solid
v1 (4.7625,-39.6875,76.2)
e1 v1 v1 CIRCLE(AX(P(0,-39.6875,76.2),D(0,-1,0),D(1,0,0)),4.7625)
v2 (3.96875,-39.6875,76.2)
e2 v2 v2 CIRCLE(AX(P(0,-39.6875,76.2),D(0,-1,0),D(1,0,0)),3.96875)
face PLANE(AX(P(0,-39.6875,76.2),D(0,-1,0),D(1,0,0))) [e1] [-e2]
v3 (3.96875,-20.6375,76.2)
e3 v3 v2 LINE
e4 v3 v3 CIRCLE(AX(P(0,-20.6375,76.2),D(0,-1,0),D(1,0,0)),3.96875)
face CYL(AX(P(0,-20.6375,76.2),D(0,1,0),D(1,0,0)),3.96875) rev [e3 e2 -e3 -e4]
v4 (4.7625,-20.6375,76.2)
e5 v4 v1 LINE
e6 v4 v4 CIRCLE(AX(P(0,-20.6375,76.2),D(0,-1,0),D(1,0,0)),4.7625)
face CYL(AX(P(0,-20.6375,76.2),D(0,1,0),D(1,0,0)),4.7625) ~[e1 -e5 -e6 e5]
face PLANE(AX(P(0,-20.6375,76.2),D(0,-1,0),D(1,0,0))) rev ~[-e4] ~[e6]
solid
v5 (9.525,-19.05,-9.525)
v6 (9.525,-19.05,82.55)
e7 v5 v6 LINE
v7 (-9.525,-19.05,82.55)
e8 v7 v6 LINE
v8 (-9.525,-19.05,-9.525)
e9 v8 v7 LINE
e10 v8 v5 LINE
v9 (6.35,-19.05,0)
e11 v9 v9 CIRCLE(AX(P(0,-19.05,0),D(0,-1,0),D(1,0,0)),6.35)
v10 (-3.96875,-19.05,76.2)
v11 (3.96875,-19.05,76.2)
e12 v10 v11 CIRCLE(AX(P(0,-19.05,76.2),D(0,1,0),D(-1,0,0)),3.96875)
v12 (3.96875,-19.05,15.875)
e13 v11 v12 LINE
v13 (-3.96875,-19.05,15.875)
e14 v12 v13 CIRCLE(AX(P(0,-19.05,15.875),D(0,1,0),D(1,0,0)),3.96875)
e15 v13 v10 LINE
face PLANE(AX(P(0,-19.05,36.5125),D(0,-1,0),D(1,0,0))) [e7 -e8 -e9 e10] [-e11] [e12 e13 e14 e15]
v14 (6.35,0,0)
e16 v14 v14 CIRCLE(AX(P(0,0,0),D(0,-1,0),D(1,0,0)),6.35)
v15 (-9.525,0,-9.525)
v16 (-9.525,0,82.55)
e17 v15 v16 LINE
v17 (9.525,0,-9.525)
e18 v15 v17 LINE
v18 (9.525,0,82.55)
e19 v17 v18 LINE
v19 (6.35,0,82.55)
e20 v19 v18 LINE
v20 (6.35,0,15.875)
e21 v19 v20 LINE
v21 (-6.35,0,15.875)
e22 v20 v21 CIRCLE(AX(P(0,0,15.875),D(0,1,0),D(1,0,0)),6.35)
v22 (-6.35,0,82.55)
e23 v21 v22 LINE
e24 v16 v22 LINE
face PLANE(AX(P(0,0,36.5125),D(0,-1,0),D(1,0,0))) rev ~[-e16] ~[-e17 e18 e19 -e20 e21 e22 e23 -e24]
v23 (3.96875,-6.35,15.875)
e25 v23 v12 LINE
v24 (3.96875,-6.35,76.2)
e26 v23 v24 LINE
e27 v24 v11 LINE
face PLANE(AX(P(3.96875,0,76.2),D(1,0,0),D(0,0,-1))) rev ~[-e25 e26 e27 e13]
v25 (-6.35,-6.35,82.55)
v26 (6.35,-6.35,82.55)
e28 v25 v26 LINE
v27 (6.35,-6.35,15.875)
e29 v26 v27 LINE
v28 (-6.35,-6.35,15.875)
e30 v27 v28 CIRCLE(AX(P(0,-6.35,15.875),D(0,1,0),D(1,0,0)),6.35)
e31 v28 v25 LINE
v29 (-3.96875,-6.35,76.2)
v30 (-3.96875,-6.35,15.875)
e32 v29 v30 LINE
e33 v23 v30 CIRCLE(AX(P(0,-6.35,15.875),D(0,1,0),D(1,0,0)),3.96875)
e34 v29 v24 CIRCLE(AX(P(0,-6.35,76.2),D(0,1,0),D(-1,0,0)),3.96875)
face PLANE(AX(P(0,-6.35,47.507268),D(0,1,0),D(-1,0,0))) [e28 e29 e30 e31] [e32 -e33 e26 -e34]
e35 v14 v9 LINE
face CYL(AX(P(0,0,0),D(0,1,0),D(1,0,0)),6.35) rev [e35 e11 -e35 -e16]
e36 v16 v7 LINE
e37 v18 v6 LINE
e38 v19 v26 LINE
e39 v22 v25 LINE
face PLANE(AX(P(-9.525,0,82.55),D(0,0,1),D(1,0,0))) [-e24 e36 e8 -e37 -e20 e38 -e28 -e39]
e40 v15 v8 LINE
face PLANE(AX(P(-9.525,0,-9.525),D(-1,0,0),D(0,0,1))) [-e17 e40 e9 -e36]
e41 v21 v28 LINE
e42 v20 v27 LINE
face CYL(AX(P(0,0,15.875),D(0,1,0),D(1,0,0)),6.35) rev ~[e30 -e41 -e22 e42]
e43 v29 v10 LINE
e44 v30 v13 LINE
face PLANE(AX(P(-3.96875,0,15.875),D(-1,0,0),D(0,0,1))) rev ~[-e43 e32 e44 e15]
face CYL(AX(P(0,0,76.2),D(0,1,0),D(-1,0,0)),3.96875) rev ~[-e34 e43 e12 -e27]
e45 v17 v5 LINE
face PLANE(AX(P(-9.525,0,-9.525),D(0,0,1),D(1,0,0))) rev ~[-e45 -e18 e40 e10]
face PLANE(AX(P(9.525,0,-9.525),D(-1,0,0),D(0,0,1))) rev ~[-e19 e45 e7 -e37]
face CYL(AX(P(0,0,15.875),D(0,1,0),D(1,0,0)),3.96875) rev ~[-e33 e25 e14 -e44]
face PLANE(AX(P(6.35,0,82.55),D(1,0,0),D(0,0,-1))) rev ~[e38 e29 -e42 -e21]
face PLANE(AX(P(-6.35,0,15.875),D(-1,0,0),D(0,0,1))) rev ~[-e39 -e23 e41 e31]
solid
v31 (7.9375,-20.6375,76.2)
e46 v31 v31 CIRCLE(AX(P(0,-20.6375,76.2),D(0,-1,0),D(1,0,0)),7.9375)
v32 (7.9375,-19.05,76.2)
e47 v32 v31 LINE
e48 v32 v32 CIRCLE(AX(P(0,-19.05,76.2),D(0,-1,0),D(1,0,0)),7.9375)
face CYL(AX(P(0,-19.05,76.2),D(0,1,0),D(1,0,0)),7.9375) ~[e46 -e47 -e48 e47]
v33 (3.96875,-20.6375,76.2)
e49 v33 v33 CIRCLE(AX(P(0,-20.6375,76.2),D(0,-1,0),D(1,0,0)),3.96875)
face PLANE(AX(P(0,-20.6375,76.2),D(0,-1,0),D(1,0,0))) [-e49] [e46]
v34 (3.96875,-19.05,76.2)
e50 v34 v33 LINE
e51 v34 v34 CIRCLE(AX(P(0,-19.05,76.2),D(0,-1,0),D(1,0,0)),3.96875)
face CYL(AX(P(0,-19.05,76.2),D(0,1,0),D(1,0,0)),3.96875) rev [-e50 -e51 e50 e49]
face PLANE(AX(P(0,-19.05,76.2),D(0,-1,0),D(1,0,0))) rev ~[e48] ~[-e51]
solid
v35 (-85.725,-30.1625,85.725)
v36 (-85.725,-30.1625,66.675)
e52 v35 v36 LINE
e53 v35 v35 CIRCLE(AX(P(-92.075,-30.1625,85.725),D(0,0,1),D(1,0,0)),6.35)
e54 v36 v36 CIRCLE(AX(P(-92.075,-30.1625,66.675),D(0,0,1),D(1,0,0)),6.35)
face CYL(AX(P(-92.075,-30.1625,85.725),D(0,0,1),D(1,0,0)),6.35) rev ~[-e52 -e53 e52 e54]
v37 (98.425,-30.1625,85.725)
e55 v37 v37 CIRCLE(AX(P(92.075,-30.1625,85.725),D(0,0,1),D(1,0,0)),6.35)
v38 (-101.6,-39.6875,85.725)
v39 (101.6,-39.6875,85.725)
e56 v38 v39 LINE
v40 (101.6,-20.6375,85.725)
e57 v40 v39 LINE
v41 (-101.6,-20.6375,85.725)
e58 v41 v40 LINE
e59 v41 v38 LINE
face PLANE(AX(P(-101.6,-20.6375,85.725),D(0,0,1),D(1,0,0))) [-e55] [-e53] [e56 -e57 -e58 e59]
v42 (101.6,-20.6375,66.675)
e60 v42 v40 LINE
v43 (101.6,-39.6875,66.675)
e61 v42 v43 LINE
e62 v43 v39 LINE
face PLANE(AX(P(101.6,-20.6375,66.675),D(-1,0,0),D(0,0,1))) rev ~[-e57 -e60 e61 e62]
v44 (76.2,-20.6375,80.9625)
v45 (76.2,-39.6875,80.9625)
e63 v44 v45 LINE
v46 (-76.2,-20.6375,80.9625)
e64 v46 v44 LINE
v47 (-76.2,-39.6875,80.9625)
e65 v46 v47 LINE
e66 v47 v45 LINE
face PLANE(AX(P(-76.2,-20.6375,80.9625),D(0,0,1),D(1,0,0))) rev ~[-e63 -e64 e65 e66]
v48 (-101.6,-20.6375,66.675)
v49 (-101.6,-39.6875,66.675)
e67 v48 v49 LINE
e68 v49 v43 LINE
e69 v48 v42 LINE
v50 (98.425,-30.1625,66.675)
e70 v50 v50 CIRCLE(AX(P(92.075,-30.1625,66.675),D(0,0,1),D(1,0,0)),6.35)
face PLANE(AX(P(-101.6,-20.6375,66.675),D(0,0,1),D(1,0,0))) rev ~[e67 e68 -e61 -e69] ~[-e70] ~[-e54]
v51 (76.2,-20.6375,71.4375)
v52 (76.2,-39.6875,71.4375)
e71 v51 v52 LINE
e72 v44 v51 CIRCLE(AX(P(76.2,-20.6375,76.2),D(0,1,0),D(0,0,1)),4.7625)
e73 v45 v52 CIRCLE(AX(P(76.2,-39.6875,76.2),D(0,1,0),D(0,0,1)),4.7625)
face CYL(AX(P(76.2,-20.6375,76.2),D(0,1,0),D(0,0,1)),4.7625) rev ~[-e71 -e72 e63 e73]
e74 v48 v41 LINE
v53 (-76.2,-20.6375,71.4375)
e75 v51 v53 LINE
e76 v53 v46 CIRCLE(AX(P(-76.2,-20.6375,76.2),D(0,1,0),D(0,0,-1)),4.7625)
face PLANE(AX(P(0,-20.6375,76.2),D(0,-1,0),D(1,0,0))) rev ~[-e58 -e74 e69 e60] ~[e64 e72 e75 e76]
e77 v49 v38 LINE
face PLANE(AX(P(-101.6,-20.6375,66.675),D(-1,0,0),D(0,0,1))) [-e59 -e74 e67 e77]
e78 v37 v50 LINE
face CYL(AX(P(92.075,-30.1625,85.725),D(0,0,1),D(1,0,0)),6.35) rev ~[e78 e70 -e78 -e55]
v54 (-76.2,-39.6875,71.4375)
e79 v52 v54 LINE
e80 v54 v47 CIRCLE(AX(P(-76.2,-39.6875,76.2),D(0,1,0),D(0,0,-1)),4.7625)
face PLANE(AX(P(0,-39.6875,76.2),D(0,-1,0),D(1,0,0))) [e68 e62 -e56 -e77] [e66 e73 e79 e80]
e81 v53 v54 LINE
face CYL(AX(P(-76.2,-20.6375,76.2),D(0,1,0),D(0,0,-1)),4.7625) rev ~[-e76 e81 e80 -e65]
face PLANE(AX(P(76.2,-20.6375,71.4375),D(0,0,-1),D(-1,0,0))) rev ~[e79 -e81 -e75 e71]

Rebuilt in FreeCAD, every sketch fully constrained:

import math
import FreeCAD as App
import Part
import Sketcher

V = App.Vector
Q = App.Units.Quantity

doc = App.newDocument("Part")
body = doc.addObject("PartDesign::Body", "Body")

# Sketch on XZ plane
sketch1 = body.newObject("Sketcher::SketchObject", "Sketch")
sketch1.AttachmentSupport = (doc.getObject("XZ_Plane"), [""])
sketch1.MapMode = "FlatFace"
sketch1.addGeometry(Part.LineSegment(V(-9.525, 82.55, 0), V(-9.525, -9.525, 0)), False)
sketch1.addGeometry(Part.LineSegment(V(-9.525, -9.525, 0), V(9.525, -9.525, 0)), False)
sketch1.addGeometry(Part.LineSegment(V(9.525, -9.525, 0), V(9.525, 82.55, 0)), False)
sketch1.addGeometry(Part.LineSegment(V(9.525, 82.55, 0), V(-9.525, 82.55, 0)), False)
sketch1.addGeometry(Part.Circle(V(0, 0, 0), V(0, 0, 1), 6.35), False)
sketch1.addGeometry(Part.LineSegment(V(-3.96875, 15.875, 0), V(-3.96875, 76.2, 0)), False)
sketch1.addGeometry(Part.ArcOfCircle(Part.Circle(V(0, 76.2, 0), V(0, 0, 1), 3.96875), math.radians(0), math.radians(180)), False)
sketch1.addGeometry(Part.LineSegment(V(3.96875, 76.2, 0), V(3.96875, 15.875, 0)), False)
sketch1.addGeometry(Part.ArcOfCircle(Part.Circle(V(0, 15.875, 0), V(0, 0, 1), 3.96875), math.radians(180), math.radians(360)), False)
sketch1.addConstraint(Sketcher.Constraint("Coincident", 0, 2, 1, 1))
sketch1.addConstraint(Sketcher.Constraint("Coincident", 1, 2, 2, 1))
sketch1.addConstraint(Sketcher.Constraint("Coincident", 2, 2, 3, 1))
sketch1.addConstraint(Sketcher.Constraint("Coincident", 3, 2, 0, 1))
sketch1.addConstraint(Sketcher.Constraint("Tangent", 5, 2, 6, 2))
sketch1.addConstraint(Sketcher.Constraint("Tangent", 6, 1, 7, 1))
sketch1.addConstraint(Sketcher.Constraint("Tangent", 7, 2, 8, 2))
sketch1.addConstraint(Sketcher.Constraint("Tangent", 8, 1, 5, 1))
sketch1.addConstraint(Sketcher.Constraint("Vertical", 0))
sketch1.addConstraint(Sketcher.Constraint("Horizontal", 1))
sketch1.addConstraint(Sketcher.Constraint("Vertical", 2))
sketch1.addConstraint(Sketcher.Constraint("Horizontal", 3))
sketch1.addConstraint(Sketcher.Constraint("Vertical", 5))
sketch1.addConstraint(Sketcher.Constraint("Vertical", 7))
sketch1.addConstraint(Sketcher.Constraint("Coincident", 4, 3, -1, 1))
sketch1.addConstraint(Sketcher.Constraint("PointOnObject", 6, 3, -2))
sketch1.addConstraint(Sketcher.Constraint("Diameter", 4, Q("0.5 in")))
sketch1.addConstraint(Sketcher.Constraint("DistanceY", -1, 1, 6, 3, Q("3 in")))
sketch1.addConstraint(Sketcher.Constraint("Radius", 6, Q("0.15625 in")))
sketch1.addConstraint(Sketcher.Constraint("DistanceY", 0, 2, 8, 3, Q("1 in")))
sketch1.addConstraint(Sketcher.Constraint("DistanceX", 1, 1, 1, 2, Q("0.75 in")))
sketch1.addConstraint(Sketcher.Constraint("DistanceY", 0, 2, 0, 1, Q("3.625 in")))
sketch1.addConstraint(Sketcher.Constraint("DistanceY", 5, 1, 5, 2, Q("2.375 in")))
sketch1.addConstraint(Sketcher.Constraint("DistanceX", 0, 2, -1, 1, Q("0.375 in")))
pad1 = body.newObject("PartDesign::Pad", "Pad")
pad1.Profile = sketch1
pad1.Length = Q("0.75 in")

# Sketch on XZ plane
sketch2 = body.newObject("Sketcher::SketchObject", "Sketch001")
sketch2.AttachmentSupport = (doc.getObject("XZ_Plane"), [""])
sketch2.MapMode = "FlatFace"
sketch2.addGeometry(Part.ArcOfCircle(Part.Circle(V(0, 15.875, 0), V(0, 0, 1), 6.35), math.radians(180), math.radians(360)), False)
sketch2.addGeometry(Part.LineSegment(V(-6.35, 15.875, 0), V(-6.35, 82.55, 0)), False)
sketch2.addGeometry(Part.LineSegment(V(-6.35, 82.55, 0), V(6.35, 82.55, 0)), False)
sketch2.addGeometry(Part.LineSegment(V(6.35, 82.55, 0), V(6.35, 15.875, 0)), False)
sketch2.addConstraint(Sketcher.Constraint("Tangent", 0, 1, 1, 1))
sketch2.addConstraint(Sketcher.Constraint("Coincident", 1, 2, 2, 1))
sketch2.addConstraint(Sketcher.Constraint("Coincident", 2, 2, 3, 1))
sketch2.addConstraint(Sketcher.Constraint("Tangent", 3, 2, 0, 2))
sketch2.addConstraint(Sketcher.Constraint("Vertical", 1))
sketch2.addConstraint(Sketcher.Constraint("Horizontal", 2))
sketch2.addConstraint(Sketcher.Constraint("Vertical", 3))
sketch2.addConstraint(Sketcher.Constraint("PointOnObject", 0, 3, -2))
sketch2.addConstraint(Sketcher.Constraint("Radius", 0, Q("0.25 in")))
sketch2.addConstraint(Sketcher.Constraint("DistanceY", 1, 1, 1, 2, Q("2.625 in")))
sketch2.addConstraint(Sketcher.Constraint("DistanceY", -1, 1, 1, 2, Q("3.25 in")))
pocket1 = body.newObject("PartDesign::Pocket", "Pocket")
pocket1.Profile = sketch2
pocket1.Length = Q("0.25 in")
pocket1.Reversed = True
body2 = doc.addObject("PartDesign::Body", "Body001")

# Sketch on XZ plane
sketch3 = body2.newObject("Sketcher::SketchObject", "Sketch002")
sketch3.AttachmentSupport = (doc.getObject("XZ_Plane001"), [""])
sketch3.MapMode = "FlatFace"
sketch3.AttachmentOffset = App.Placement(V(0, 0, 0.75 * 25.4), App.Rotation())
sketch3.addGeometry(Part.Circle(V(0, 76.2, 0), V(0, 0, 1), 7.9375), False)
sketch3.addGeometry(Part.Circle(V(0, 76.2, 0), V(0, 0, 1), 3.96875), False)
sketch3.addConstraint(Sketcher.Constraint("Coincident", 1, 3, 0, 3))
sketch3.addConstraint(Sketcher.Constraint("PointOnObject", 0, 3, -2))
sketch3.addConstraint(Sketcher.Constraint("Diameter", 0, Q("0.625 in")))
sketch3.addConstraint(Sketcher.Constraint("Diameter", 1, Q("0.3125 in")))
sketch3.addConstraint(Sketcher.Constraint("DistanceY", -1, 1, 0, 3, Q("3 in")))
pad2 = body2.newObject("PartDesign::Pad", "Pad001")
pad2.Profile = sketch3
pad2.Length = Q("0.0625 in")
body3 = doc.addObject("PartDesign::Body", "Body002")

# Sketch on XZ plane
sketch4 = body3.newObject("Sketcher::SketchObject", "Sketch003")
sketch4.AttachmentSupport = (doc.getObject("XZ_Plane002"), [""])
sketch4.MapMode = "FlatFace"
sketch4.AttachmentOffset = App.Placement(V(0, 0, 0.8125 * 25.4), App.Rotation())
sketch4.addGeometry(Part.Circle(V(0, 76.2, 0), V(0, 0, 1), 4.7625), False)
sketch4.addGeometry(Part.Circle(V(0, 76.2, 0), V(0, 0, 1), 3.96875), False)
sketch4.addConstraint(Sketcher.Constraint("Coincident", 1, 3, 0, 3))
sketch4.addConstraint(Sketcher.Constraint("PointOnObject", 0, 3, -2))
sketch4.addConstraint(Sketcher.Constraint("Diameter", 0, Q("0.375 in")))
sketch4.addConstraint(Sketcher.Constraint("Diameter", 1, Q("0.3125 in")))
sketch4.addConstraint(Sketcher.Constraint("DistanceY", -1, 1, 0, 3, Q("3 in")))
pad3 = body3.newObject("PartDesign::Pad", "Pad002")
pad3.Profile = sketch4
pad3.Length = Q("0.75 in")
body4 = doc.addObject("PartDesign::Body", "Body003")

# Sketch on XZ plane
sketch5 = body4.newObject("Sketcher::SketchObject", "Sketch004")
sketch5.AttachmentSupport = (doc.getObject("XZ_Plane003"), [""])
sketch5.MapMode = "FlatFace"
sketch5.AttachmentOffset = App.Placement(V(0, 0, 0.8125 * 25.4), App.Rotation())
sketch5.addGeometry(Part.LineSegment(V(-101.6, 85.725, 0), V(-101.6, 66.675, 0)), False)
sketch5.addGeometry(Part.LineSegment(V(-101.6, 66.675, 0), V(101.6, 66.675, 0)), False)
sketch5.addGeometry(Part.LineSegment(V(101.6, 66.675, 0), V(101.6, 85.725, 0)), False)
sketch5.addGeometry(Part.LineSegment(V(101.6, 85.725, 0), V(-101.6, 85.725, 0)), False)
sketch5.addGeometry(Part.LineSegment(V(76.2, 71.4375, 0), V(-76.2, 71.4375, 0)), False)
sketch5.addGeometry(Part.ArcOfCircle(Part.Circle(V(-76.2, 76.2, 0), V(0, 0, 1), 4.7625), math.radians(90), math.radians(270)), False)
sketch5.addGeometry(Part.LineSegment(V(-76.2, 80.9625, 0), V(76.2, 80.9625, 0)), False)
sketch5.addGeometry(Part.ArcOfCircle(Part.Circle(V(76.2, 76.2, 0), V(0, 0, 1), 4.7625), math.radians(-90), math.radians(90)), False)
sketch5.addConstraint(Sketcher.Constraint("Coincident", 0, 2, 1, 1))
sketch5.addConstraint(Sketcher.Constraint("Coincident", 1, 2, 2, 1))
sketch5.addConstraint(Sketcher.Constraint("Coincident", 2, 2, 3, 1))
sketch5.addConstraint(Sketcher.Constraint("Coincident", 3, 2, 0, 1))
sketch5.addConstraint(Sketcher.Constraint("Tangent", 4, 2, 5, 2))
sketch5.addConstraint(Sketcher.Constraint("Tangent", 5, 1, 6, 1))
sketch5.addConstraint(Sketcher.Constraint("Tangent", 6, 2, 7, 2))
sketch5.addConstraint(Sketcher.Constraint("Tangent", 7, 1, 4, 1))
sketch5.addConstraint(Sketcher.Constraint("Vertical", 0))
sketch5.addConstraint(Sketcher.Constraint("Horizontal", 1))
sketch5.addConstraint(Sketcher.Constraint("Vertical", 2))
sketch5.addConstraint(Sketcher.Constraint("Horizontal", 3))
sketch5.addConstraint(Sketcher.Constraint("Horizontal", 4))
sketch5.addConstraint(Sketcher.Constraint("Horizontal", 6))
sketch5.addConstraint(Sketcher.Constraint("DistanceX", 1, 1, 1, 2, Q("8 in")))
sketch5.addConstraint(Sketcher.Constraint("DistanceX", 4, 2, 4, 1, Q("6 in")))
sketch5.addConstraint(Sketcher.Constraint("DistanceX", 5, 3, -1, 1, Q("3 in")))
sketch5.addConstraint(Sketcher.Constraint("DistanceY", -1, 1, 5, 3, Q("3 in")))
sketch5.addConstraint(Sketcher.Constraint("DistanceX", 0, 2, -1, 1, Q("4 in")))
sketch5.addConstraint(Sketcher.Constraint("Radius", 5, Q("0.1875 in")))
sketch5.addConstraint(Sketcher.Constraint("DistanceY", 0, 2, 0, 1, Q("0.75 in")))
sketch5.addConstraint(Sketcher.Constraint("DistanceY", -1, 1, 0, 2, Q("2.625 in")))
pad4 = body4.newObject("PartDesign::Pad", "Pad003")
pad4.Profile = sketch5
pad4.Length = Q("0.75 in")

# Sketch on XY plane
sketch6 = body4.newObject("Sketcher::SketchObject", "Sketch005")
sketch6.AttachmentSupport = (doc.getObject("XY_Plane003"), [""])
sketch6.MapMode = "FlatFace"
sketch6.AttachmentOffset = App.Placement(V(0, 0, 3.375 * 25.4), App.Rotation())
sketch6.addGeometry(Part.Circle(V(-92.075, -30.1625, 0), V(0, 0, 1), 6.35), False)
sketch6.addGeometry(Part.Circle(V(92.075, -30.1625, 0), V(0, 0, 1), 6.35), False)
sketch6.addConstraint(Sketcher.Constraint("Equal", 0, 1))
sketch6.addConstraint(Sketcher.Constraint("Symmetric", 0, 3, 1, 3, -2))
sketch6.addConstraint(Sketcher.Constraint("Diameter", 0, Q("0.5 in")))
sketch6.addConstraint(Sketcher.Constraint("DistanceX", 0, 3, 1, 3, Q("7.25 in")))
sketch6.addConstraint(Sketcher.Constraint("DistanceY", 0, 3, -1, 1, Q("1.1875 in")))
pocket2 = body4.newObject("PartDesign::Pocket", "Pocket001")
pocket2.Profile = sketch6
pocket2.Type = "ThroughAll"

doc.recompute()
